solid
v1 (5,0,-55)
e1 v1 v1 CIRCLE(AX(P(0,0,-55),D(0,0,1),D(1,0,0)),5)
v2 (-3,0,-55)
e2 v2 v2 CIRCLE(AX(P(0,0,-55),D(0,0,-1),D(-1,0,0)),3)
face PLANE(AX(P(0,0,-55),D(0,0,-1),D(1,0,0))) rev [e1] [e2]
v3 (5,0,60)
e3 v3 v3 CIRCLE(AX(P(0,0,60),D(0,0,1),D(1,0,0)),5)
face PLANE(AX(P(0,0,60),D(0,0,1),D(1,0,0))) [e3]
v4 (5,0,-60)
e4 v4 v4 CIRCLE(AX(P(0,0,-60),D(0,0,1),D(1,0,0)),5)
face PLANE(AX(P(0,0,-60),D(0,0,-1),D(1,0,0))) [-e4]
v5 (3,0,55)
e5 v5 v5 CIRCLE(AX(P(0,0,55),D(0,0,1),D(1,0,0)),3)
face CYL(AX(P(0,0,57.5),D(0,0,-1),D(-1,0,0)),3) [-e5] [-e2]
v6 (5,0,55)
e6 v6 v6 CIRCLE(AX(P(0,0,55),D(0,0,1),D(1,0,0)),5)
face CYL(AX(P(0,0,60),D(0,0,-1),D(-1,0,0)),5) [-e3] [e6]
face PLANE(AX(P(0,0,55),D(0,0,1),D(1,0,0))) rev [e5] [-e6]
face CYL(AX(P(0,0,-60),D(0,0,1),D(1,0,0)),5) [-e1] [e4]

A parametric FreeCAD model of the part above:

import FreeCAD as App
import Part
import Sketcher

doc = App.newDocument("Part")
params = doc.addObject("Spreadsheet::Sheet", "Params")
for row, (alias, value) in enumerate([
    ("sketch1_diameter", "6 mm"),
    ("pad1_length", "115 mm"),
    ("sketch2_diameter", "10 mm"),
    ("pad2_length", "5 mm"),
], start=1):
    params.set(f"A{row}", alias)
    params.set(f"B{row}", "=" + value)
    params.setAlias(f"B{row}", alias)

body = doc.addObject("PartDesign::Body", "Body")

sketch1 = body.newObject("Sketcher::SketchObject", "Sketch")
sketch1.AttachmentSupport = (doc.getObject("XY_Plane"), [""])
sketch1.MapMode = "FlatFace"
sketch1.addGeometry(Part.Circle(App.Vector(0, 0, 0), App.Vector(0, 0, 1), 3), False)
sketch1.addConstraint([
    Sketcher.Constraint("Coincident", 0, 3, -1, 1),
    Sketcher.Constraint("Diameter", 0, 6.0),
])
sketch1.setExpression("Constraints[1]", "Params.sketch1_diameter")
pad1 = body.newObject("PartDesign::Pad", "Pad")
pad1.Profile = sketch1
pad1.setExpression("Length", "Params.pad1_length")
pad1.Midplane = True

sketch2 = body.newObject("Sketcher::SketchObject", "Sketch001")
sketch2.AttachmentSupport = (doc.getObject("XY_Plane"), [""])
sketch2.MapMode = "FlatFace"
sketch2.AttachmentOffset = App.Placement(App.Vector(0, 0, 57.5), App.Rotation())
sketch2.addGeometry(Part.Circle(App.Vector(0, 0, 0), App.Vector(0, 0, 1), 5), False)
sketch2.addConstraint([
    Sketcher.Constraint("Coincident", 0, 3, -1, 1),
    Sketcher.Constraint("Diameter", 0, 10.0),
])
sketch2.setExpression("Constraints[1]", "Params.sketch2_diameter")
pad2 = body.newObject("PartDesign::Pad", "Pad001")
pad2.Profile = sketch2
pad2.setExpression("Length", "Params.pad2_length")
pad2.Midplane = True
doc.recompute()

mirrored = body.newObject("PartDesign::Mirrored", "Mirrored")
mirrored.Originals = [pad2]
mirrored.MirrorPlane = (doc.getObject("XY_Plane"), [""])
body.Tip = mirrored

doc.recompute()
